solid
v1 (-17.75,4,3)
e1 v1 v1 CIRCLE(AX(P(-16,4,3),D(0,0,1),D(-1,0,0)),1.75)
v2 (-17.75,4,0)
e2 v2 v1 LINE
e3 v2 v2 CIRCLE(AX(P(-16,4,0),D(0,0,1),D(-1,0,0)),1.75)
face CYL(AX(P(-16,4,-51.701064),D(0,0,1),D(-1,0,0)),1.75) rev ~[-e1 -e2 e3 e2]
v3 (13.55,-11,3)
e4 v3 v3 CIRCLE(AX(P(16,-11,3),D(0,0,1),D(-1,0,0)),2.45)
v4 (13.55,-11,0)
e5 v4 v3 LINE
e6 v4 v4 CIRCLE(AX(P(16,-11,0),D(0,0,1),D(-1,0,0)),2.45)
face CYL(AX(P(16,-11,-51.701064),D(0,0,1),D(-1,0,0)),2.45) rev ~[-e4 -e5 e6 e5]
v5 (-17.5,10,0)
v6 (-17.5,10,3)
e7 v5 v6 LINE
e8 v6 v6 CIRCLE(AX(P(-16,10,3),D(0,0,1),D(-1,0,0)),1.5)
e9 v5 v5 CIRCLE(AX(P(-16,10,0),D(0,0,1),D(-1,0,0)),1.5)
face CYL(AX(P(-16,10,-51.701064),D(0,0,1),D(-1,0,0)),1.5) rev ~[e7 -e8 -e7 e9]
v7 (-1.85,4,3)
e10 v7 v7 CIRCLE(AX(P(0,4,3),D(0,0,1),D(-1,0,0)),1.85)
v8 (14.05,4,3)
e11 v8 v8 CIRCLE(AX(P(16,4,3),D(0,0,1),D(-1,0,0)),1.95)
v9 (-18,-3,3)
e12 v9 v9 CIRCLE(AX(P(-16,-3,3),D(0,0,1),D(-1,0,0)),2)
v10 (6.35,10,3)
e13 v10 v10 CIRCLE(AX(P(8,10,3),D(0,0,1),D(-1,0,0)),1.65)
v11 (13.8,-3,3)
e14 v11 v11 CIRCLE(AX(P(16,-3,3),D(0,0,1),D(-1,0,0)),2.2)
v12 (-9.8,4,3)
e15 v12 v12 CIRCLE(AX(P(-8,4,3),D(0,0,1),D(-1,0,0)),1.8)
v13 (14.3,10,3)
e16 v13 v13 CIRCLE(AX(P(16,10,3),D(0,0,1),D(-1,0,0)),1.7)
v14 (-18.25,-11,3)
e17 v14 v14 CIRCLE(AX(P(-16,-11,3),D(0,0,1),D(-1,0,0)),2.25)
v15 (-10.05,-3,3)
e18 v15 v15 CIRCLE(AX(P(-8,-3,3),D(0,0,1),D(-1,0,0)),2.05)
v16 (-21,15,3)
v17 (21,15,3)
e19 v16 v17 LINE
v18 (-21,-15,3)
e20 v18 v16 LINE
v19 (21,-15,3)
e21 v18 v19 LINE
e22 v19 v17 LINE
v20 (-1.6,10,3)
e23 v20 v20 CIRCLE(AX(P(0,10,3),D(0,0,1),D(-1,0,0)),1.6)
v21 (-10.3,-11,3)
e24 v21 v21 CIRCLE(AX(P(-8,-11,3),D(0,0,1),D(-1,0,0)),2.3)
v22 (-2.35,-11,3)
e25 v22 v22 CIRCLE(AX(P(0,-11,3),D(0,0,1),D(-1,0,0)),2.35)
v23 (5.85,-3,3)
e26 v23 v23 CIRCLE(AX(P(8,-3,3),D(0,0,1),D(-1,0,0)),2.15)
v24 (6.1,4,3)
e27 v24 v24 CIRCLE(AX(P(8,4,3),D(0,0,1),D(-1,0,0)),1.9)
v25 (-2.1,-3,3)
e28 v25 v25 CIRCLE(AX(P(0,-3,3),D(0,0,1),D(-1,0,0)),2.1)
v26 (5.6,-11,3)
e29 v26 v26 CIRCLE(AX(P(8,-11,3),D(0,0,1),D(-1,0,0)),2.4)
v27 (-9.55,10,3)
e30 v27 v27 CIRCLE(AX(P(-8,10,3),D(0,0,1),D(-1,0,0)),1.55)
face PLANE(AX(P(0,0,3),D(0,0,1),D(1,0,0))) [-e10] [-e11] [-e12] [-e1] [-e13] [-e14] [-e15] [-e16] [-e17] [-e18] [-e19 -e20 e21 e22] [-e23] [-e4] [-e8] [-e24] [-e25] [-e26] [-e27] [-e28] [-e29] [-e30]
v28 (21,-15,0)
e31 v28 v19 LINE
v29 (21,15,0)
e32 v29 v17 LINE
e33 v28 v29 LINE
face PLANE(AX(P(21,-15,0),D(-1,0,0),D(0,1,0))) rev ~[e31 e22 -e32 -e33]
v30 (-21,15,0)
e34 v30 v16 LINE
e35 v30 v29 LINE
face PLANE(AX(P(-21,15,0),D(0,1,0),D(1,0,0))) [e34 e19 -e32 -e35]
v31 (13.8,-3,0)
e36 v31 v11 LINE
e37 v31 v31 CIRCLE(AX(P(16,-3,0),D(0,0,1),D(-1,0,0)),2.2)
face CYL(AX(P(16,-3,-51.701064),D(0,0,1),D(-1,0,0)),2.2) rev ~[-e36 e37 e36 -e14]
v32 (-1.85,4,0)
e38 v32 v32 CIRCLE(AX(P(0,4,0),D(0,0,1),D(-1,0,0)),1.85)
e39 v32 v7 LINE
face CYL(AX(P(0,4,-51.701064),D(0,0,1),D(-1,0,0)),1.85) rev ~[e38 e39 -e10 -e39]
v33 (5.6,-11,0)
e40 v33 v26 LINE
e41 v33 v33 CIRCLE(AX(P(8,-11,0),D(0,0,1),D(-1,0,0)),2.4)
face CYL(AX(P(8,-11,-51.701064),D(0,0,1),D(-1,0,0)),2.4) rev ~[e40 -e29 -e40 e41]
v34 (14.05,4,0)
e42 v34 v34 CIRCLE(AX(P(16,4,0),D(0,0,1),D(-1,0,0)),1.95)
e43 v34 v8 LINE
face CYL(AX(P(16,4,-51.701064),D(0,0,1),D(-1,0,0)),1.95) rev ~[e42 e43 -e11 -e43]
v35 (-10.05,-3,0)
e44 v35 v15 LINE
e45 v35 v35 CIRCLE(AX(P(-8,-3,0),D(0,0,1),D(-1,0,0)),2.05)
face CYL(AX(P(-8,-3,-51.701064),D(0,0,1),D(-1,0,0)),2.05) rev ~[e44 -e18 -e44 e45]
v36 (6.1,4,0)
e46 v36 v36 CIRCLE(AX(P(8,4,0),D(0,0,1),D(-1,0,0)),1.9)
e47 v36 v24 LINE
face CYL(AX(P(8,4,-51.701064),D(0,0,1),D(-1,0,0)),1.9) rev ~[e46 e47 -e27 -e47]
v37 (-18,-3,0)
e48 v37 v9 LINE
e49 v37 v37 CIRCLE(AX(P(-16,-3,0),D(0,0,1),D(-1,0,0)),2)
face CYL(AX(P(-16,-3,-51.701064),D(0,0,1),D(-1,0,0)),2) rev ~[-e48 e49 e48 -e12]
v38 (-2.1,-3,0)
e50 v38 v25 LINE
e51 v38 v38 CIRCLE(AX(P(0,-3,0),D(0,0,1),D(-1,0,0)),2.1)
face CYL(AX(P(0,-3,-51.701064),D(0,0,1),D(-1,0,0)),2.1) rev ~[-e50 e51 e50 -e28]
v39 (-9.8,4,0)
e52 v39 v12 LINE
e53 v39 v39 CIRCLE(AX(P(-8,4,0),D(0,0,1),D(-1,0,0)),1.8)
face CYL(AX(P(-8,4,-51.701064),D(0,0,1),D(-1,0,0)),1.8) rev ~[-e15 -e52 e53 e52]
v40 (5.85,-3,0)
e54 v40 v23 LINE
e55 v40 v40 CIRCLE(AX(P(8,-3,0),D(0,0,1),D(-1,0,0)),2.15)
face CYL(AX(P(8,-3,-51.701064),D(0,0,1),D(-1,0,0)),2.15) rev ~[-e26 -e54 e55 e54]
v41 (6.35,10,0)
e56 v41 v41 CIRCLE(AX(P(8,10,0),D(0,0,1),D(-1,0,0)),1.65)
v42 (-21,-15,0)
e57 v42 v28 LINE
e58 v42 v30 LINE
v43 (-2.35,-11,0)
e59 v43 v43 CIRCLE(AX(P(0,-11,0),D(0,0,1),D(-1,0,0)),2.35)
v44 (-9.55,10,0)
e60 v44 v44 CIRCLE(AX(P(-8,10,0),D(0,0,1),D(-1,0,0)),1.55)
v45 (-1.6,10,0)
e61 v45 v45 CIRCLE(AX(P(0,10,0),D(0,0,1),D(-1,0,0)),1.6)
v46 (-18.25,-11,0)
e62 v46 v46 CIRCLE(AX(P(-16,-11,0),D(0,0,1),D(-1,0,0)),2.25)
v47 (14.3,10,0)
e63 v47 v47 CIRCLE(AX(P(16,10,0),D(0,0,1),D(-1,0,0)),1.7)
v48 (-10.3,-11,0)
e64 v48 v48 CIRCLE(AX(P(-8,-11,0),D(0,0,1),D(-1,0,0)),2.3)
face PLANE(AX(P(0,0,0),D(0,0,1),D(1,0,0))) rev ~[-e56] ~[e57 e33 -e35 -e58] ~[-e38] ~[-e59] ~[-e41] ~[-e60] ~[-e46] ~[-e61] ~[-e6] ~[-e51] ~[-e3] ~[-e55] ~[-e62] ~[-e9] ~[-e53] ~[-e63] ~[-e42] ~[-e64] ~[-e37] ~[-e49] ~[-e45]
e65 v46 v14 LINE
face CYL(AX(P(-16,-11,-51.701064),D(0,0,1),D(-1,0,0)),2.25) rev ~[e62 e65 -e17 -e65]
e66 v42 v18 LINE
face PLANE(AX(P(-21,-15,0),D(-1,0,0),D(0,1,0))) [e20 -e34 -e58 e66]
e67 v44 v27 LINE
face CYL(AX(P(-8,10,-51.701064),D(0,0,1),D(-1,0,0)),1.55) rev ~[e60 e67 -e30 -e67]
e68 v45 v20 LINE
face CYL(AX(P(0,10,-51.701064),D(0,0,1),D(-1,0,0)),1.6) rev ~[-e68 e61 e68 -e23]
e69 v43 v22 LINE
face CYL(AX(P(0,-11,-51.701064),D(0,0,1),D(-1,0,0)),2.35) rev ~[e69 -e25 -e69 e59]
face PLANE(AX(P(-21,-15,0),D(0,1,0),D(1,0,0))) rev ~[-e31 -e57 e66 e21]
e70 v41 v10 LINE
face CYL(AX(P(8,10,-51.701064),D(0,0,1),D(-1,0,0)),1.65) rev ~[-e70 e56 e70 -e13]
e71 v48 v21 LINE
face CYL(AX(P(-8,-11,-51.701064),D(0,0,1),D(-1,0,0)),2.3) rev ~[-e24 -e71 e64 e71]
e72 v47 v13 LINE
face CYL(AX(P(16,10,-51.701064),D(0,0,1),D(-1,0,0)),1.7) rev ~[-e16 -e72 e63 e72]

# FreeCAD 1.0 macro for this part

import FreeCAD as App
import Part
import Sketcher

V = App.Vector


def add_polygon(sketch, points):
    """Adds a closed chain of lines whose ends are joined by coincident constraints."""
    first, n = sketch.GeometryCount, len(points)
    for a, b in zip(points, points[1:] + points[:1]):
        sketch.addGeometry(Part.LineSegment(App.Vector(*a, 0), App.Vector(*b, 0)), False)
    for i in range(n):
        sketch.addConstraint(Sketcher.Constraint("Coincident", first + i, 2, first + (i + 1) % n, 1))

doc = App.newDocument("Part")
body = doc.addObject("PartDesign::Body", "Body")

sketch1 = body.newObject("Sketcher::SketchObject", "Sketch")
sketch1.AttachmentSupport = (doc.getObject("XY_Plane"), [""])
sketch1.MapMode = "FlatFace"
add_polygon(sketch1, [(-21, 15), (-21, -15), (21, -15), (21, 15)])
sketch1.addConstraint(Sketcher.Constraint("Vertical", 0))
sketch1.addConstraint(Sketcher.Constraint("Horizontal", 1))
sketch1.addConstraint(Sketcher.Constraint("Vertical", 2))
sketch1.addConstraint(Sketcher.Constraint("Horizontal", 3))
sketch1.addConstraint(Sketcher.Constraint("Symmetric", 0, 2, 2, 2, -1, 1))
sketch1.addConstraint(Sketcher.Constraint("DistanceX", 1, 1, 1, 2, 42.0))
sketch1.addConstraint(Sketcher.Constraint("DistanceY", 0, 2, 0, 1, 30.0))
pad1 = body.newObject("PartDesign::Pad", "Pad")
pad1.Profile = sketch1
pad1.Length = 3

sketch2 = body.newObject("Sketcher::SketchObject", "Sketch001")
sketch2.AttachmentSupport = (doc.getObject("XY_Plane"), [""])
sketch2.MapMode = "FlatFace"
sketch2.addGeometry(Part.Circle(V(-16, 10, 0), V(0, 0, 1), 1.5), False)
sketch2.addConstraint(Sketcher.Constraint("Diameter", 0, 3.0))
sketch2.addConstraint(Sketcher.Constraint("DistanceX", 0, 3, -1, 1, 16.0))
sketch2.addConstraint(Sketcher.Constraint("DistanceY", -1, 1, 0, 3, 10.0))
doc.recompute()
hole = body.newObject("PartDesign::Hole", "Hole")
hole.Profile = sketch2
hole.ThreadType = "None"
hole.Diameter = 3
hole.DepthType = "ThroughAll"
hole.Reversed = True

sketch3 = body.newObject("Sketcher::SketchObject", "Sketch002")
sketch3.AttachmentSupport = (doc.getObject("XY_Plane"), [""])
sketch3.MapMode = "FlatFace"
sketch3.addGeometry(Part.Circle(V(-8, 10, 0), V(0, 0, 1), 1.6), False)
sketch3.addConstraint(Sketcher.Constraint("Diameter", 0, 3.1))
sketch3.addConstraint(Sketcher.Constraint("DistanceX", 0, 3, -1, 1, 8.0))
sketch3.addConstraint(Sketcher.Constraint("DistanceY", -1, 1, 0, 3, 10.0))
doc.recompute()
hole2 = body.newObject("PartDesign::Hole", "Hole001")
hole2.Profile = sketch3
hole2.ThreadType = "None"
hole2.Diameter = 3.1
hole2.DepthType = "ThroughAll"
hole2.Reversed = True

sketch4 = body.newObject("Sketcher::SketchObject", "Sketch003")
sketch4.AttachmentSupport = (doc.getObject("XY_Plane"), [""])
sketch4.MapMode = "FlatFace"
sketch4.addGeometry(Part.Circle(V(0, 10, 0), V(0, 0, 1), 1.6), False)
sketch4.addConstraint(Sketcher.Constraint("PointOnObject", 0, 3, -2))
sketch4.addConstraint(Sketcher.Constraint("Diameter", 0, 3.2))
sketch4.addConstraint(Sketcher.Constraint("DistanceY", -1, 1, 0, 3, 10.0))
doc.recompute()
hole3 = body.newObject("PartDesign::Hole", "Hole002")
hole3.Profile = sketch4
hole3.ThreadType = "None"
hole3.Diameter = 3.2
hole3.DepthType = "ThroughAll"
hole3.Reversed = True

sketch5 = body.newObject("Sketcher::SketchObject", "Sketch004")
sketch5.AttachmentSupport = (doc.getObject("XY_Plane"), [""])
sketch5.MapMode = "FlatFace"
sketch5.addGeometry(Part.Circle(V(8, 10, 0), V(0, 0, 1), 1.6), False)
sketch5.addConstraint(Sketcher.Constraint("Diameter", 0, 3.3))
sketch5.addConstraint(Sketcher.Constraint("DistanceX", -1, 1, 0, 3, 8.0))
sketch5.addConstraint(Sketcher.Constraint("DistanceY", -1, 1, 0, 3, 10.0))
doc.recompute()
hole4 = body.newObject("PartDesign::Hole", "Hole003")
hole4.Profile = sketch5
hole4.ThreadType = "None"
hole4.Diameter = 3.3
hole4.DepthType = "ThroughAll"
hole4.Reversed = True

sketch6 = body.newObject("Sketcher::SketchObject", "Sketch005")
sketch6.AttachmentSupport = (doc.getObject("XY_Plane"), [""])
sketch6.MapMode = "FlatFace"
sketch6.addGeometry(Part.Circle(V(16, 10, 0), V(0, 0, 1), 1.7), False)
sketch6.addConstraint(Sketcher.Constraint("Diameter", 0, 3.4))
sketch6.addConstraint(Sketcher.Constraint("DistanceX", -1, 1, 0, 3, 16.0))
sketch6.addConstraint(Sketcher.Constraint("DistanceY", -1, 1, 0, 3, 10.0))
doc.recompute()
hole5 = body.newObject("PartDesign::Hole", "Hole004")
hole5.Profile = sketch6
hole5.ThreadType = "None"
hole5.Diameter = 3.4
hole5.DepthType = "ThroughAll"
hole5.Reversed = True

sketch7 = body.newObject("Sketcher::SketchObject", "Sketch006")
sketch7.AttachmentSupport = (doc.getObject("XY_Plane"), [""])
sketch7.MapMode = "FlatFace"
sketch7.addGeometry(Part.Circle(V(-16, 4, 0), V(0, 0, 1), 1.8), False)
sketch7.addConstraint(Sketcher.Constraint("Diameter", 0, 3.5))
sketch7.addConstraint(Sketcher.Constraint("DistanceX", 0, 3, -1, 1, 16.0))
sketch7.addConstraint(Sketcher.Constraint("DistanceY", -1, 1, 0, 3, 4.0))
doc.recompute()
hole6 = body.newObject("PartDesign::Hole", "Hole005")
hole6.Profile = sketch7
hole6.ThreadType = "None"
hole6.Diameter = 3.5
hole6.DepthType = "ThroughAll"
hole6.Reversed = True

sketch8 = body.newObject("Sketcher::SketchObject", "Sketch007")
sketch8.AttachmentSupport = (doc.getObject("XY_Plane"), [""])
sketch8.MapMode = "FlatFace"
sketch8.addGeometry(Part.Circle(V(-8, 4, 0), V(0, 0, 1), 1.8), False)
sketch8.addConstraint(Sketcher.Constraint("Diameter", 0, 3.6))
sketch8.addConstraint(Sketcher.Constraint("DistanceX", 0, 3, -1, 1, 8.0))
sketch8.addConstraint(Sketcher.Constraint("DistanceY", -1, 1, 0, 3, 4.0))
doc.recompute()
hole7 = body.newObject("PartDesign::Hole", "Hole006")
hole7.Profile = sketch8
hole7.ThreadType = "None"
hole7.Diameter = 3.6
hole7.DepthType = "ThroughAll"
hole7.Reversed = True

sketch9 = body.newObject("Sketcher::SketchObject", "Sketch008")
sketch9.AttachmentSupport = (doc.getObject("XY_Plane"), [""])
sketch9.MapMode = "FlatFace"
sketch9.addGeometry(Part.Circle(V(0, 4, 0), V(0, 0, 1), 1.9), False)
sketch9.addConstraint(Sketcher.Constraint("PointOnObject", 0, 3, -2))
sketch9.addConstraint(Sketcher.Constraint("Diameter", 0, 3.7))
sketch9.addConstraint(Sketcher.Constraint("DistanceY", -1, 1, 0, 3, 4.0))
doc.recompute()
hole8 = body.newObject("PartDesign::Hole", "Hole007")
hole8.Profile = sketch9
hole8.ThreadType = "None"
hole8.Diameter = 3.7
hole8.DepthType = "ThroughAll"
hole8.Reversed = True

sketch10 = body.newObject("Sketcher::SketchObject", "Sketch009")
sketch10.AttachmentSupport = (doc.getObject("XY_Plane"), [""])
sketch10.MapMode = "FlatFace"
sketch10.addGeometry(Part.Circle(V(8, 4, 0), V(0, 0, 1), 1.9), False)
sketch10.addConstraint(Sketcher.Constraint("Diameter", 0, 3.8))
sketch10.addConstraint(Sketcher.Constraint("DistanceX", -1, 1, 0, 3, 8.0))
sketch10.addConstraint(Sketcher.Constraint("DistanceY", -1, 1, 0, 3, 4.0))
doc.recompute()
hole9 = body.newObject("PartDesign::Hole", "Hole008")
hole9.Profile = sketch10
hole9.ThreadType = "None"
hole9.Diameter = 3.8
hole9.DepthType = "ThroughAll"
hole9.Reversed = True

sketch11 = body.newObject("Sketcher::SketchObject", "Sketch010")
sketch11.AttachmentSupport = (doc.getObject("XY_Plane"), [""])
sketch11.MapMode = "FlatFace"
sketch11.addGeometry(Part.Circle(V(16, 4, 0), V(0, 0, 1), 1.9), False)
sketch11.addConstraint(Sketcher.Constraint("Diameter", 0, 3.9))
sketch11.addConstraint(Sketcher.Constraint("DistanceX", -1, 1, 0, 3, 16.0))
sketch11.addConstraint(Sketcher.Constraint("DistanceY", -1, 1, 0, 3, 4.0))
doc.recompute()
hole10 = body.newObject("PartDesign::Hole", "Hole009")
hole10.Profile = sketch11
hole10.ThreadType = "None"
hole10.Diameter = 3.9
hole10.DepthType = "ThroughAll"
hole10.Reversed = True

sketch12 = body.newObject("Sketcher::SketchObject", "Sketch011")
sketch12.AttachmentSupport = (doc.getObject("XY_Plane"), [""])
sketch12.MapMode = "FlatFace"
sketch12.addGeometry(Part.Circle(V(-16, -3, 0), V(0, 0, 1), 2), False)
sketch12.addConstraint(Sketcher.Constraint("Diameter", 0, 4.0))
sketch12.addConstraint(Sketcher.Constraint("DistanceX", 0, 3, -1, 1, 16.0))
sketch12.addConstraint(Sketcher.Constraint("DistanceY", 0, 3, -1, 1, 3.0))
doc.recompute()
hole11 = body.newObject("PartDesign::Hole", "Hole010")
hole11.Profile = sketch12
hole11.ThreadType = "None"
hole11.Diameter = 4
hole11.DepthType = "ThroughAll"
hole11.Reversed = True

sketch13 = body.newObject("Sketcher::SketchObject", "Sketch012")
sketch13.AttachmentSupport = (doc.getObject("XY_Plane"), [""])
sketch13.MapMode = "FlatFace"
sketch13.addGeometry(Part.Circle(V(-8, -3, 0), V(0, 0, 1), 2), False)
sketch13.addConstraint(Sketcher.Constraint("Diameter", 0, 4.1))
sketch13.addConstraint(Sketcher.Constraint("DistanceX", 0, 3, -1, 1, 8.0))
sketch13.addConstraint(Sketcher.Constraint("DistanceY", 0, 3, -1, 1, 3.0))
doc.recompute()
hole12 = body.newObject("PartDesign::Hole", "Hole011")
hole12.Profile = sketch13
hole12.ThreadType = "None"
hole12.Diameter = 4.1
hole12.DepthType = "ThroughAll"
hole12.Reversed = True

sketch14 = body.newObject("Sketcher::SketchObject", "Sketch013")
sketch14.AttachmentSupport = (doc.getObject("XY_Plane"), [""])
sketch14.MapMode = "FlatFace"
sketch14.addGeometry(Part.Circle(V(0, -3, 0), V(0, 0, 1), 2.1), False)
sketch14.addConstraint(Sketcher.Constraint("PointOnObject", 0, 3, -2))
sketch14.addConstraint(Sketcher.Constraint("Diameter", 0, 4.2))
sketch14.addConstraint(Sketcher.Constraint("DistanceY", 0, 3, -1, 1, 3.0))
doc.recompute()
hole13 = body.newObject("PartDesign::Hole", "Hole012")
hole13.Profile = sketch14
hole13.ThreadType = "None"
hole13.Diameter = 4.2
hole13.DepthType = "ThroughAll"
hole13.Reversed = True

sketch15 = body.newObject("Sketcher::SketchObject", "Sketch014")
sketch15.AttachmentSupport = (doc.getObject("XY_Plane"), [""])
sketch15.MapMode = "FlatFace"
sketch15.addGeometry(Part.Circle(V(8, -3, 0), V(0, 0, 1), 2.1), False)
sketch15.addConstraint(Sketcher.Constraint("Diameter", 0, 4.3))
sketch15.addConstraint(Sketcher.Constraint("DistanceX", -1, 1, 0, 3, 8.0))
sketch15.addConstraint(Sketcher.Constraint("DistanceY", 0, 3, -1, 1, 3.0))
doc.recompute()
hole14 = body.newObject("PartDesign::Hole", "Hole013")
hole14.Profile = sketch15
hole14.ThreadType = "None"
hole14.Diameter = 4.3
hole14.DepthType = "ThroughAll"
hole14.Reversed = True

sketch16 = body.newObject("Sketcher::SketchObject", "Sketch015")
sketch16.AttachmentSupport = (doc.getObject("XY_Plane"), [""])
sketch16.MapMode = "FlatFace"
sketch16.addGeometry(Part.Circle(V(16, -3, 0), V(0, 0, 1), 2.2), False)
sketch16.addConstraint(Sketcher.Constraint("Diameter", 0, 4.4))
sketch16.addConstraint(Sketcher.Constraint("DistanceX", -1, 1, 0, 3, 16.0))
sketch16.addConstraint(Sketcher.Constraint("DistanceY", 0, 3, -1, 1, 3.0))
doc.recompute()
hole15 = body.newObject("PartDesign::Hole", "Hole014")
hole15.Profile = sketch16
hole15.ThreadType = "None"
hole15.Diameter = 4.4
hole15.DepthType = "ThroughAll"
hole15.Reversed = True

sketch17 = body.newObject("Sketcher::SketchObject", "Sketch016")
sketch17.AttachmentSupport = (doc.getObject("XY_Plane"), [""])
sketch17.MapMode = "FlatFace"
sketch17.addGeometry(Part.Circle(V(-16, -11, 0), V(0, 0, 1), 2.2), False)
sketch17.addConstraint(Sketcher.Constraint("Diameter", 0, 4.5))
sketch17.addConstraint(Sketcher.Constraint("DistanceX", 0, 3, -1, 1, 16.0))
sketch17.addConstraint(Sketcher.Constraint("DistanceY", 0, 3, -1, 1, 11.0))
doc.recompute()
hole16 = body.newObject("PartDesign::Hole", "Hole015")
hole16.Profile = sketch17
hole16.ThreadType = "None"
hole16.Diameter = 4.5
hole16.DepthType = "ThroughAll"
hole16.Reversed = True

sketch18 = body.newObject("Sketcher::SketchObject", "Sketch017")
sketch18.AttachmentSupport = (doc.getObject("XY_Plane"), [""])
sketch18.MapMode = "FlatFace"
sketch18.addGeometry(Part.Circle(V(-8, -11, 0), V(0, 0, 1), 2.3), False)
sketch18.addConstraint(Sketcher.Constraint("Diameter", 0, 4.6))
sketch18.addConstraint(Sketcher.Constraint("DistanceX", 0, 3, -1, 1, 8.0))
sketch18.addConstraint(Sketcher.Constraint("DistanceY", 0, 3, -1, 1, 11.0))
doc.recompute()
hole17 = body.newObject("PartDesign::Hole", "Hole016")
hole17.Profile = sketch18
hole17.ThreadType = "None"
hole17.Diameter = 4.6
hole17.DepthType = "ThroughAll"
hole17.Reversed = True

sketch19 = body.newObject("Sketcher::SketchObject", "Sketch018")
sketch19.AttachmentSupport = (doc.getObject("XY_Plane"), [""])
sketch19.MapMode = "FlatFace"
sketch19.addGeometry(Part.Circle(V(0, -11, 0), V(0, 0, 1), 2.4), False)
sketch19.addConstraint(Sketcher.Constraint("PointOnObject", 0, 3, -2))
sketch19.addConstraint(Sketcher.Constraint("Diameter", 0, 4.7))
sketch19.addConstraint(Sketcher.Constraint("DistanceY", 0, 3, -1, 1, 11.0))
doc.recompute()
hole18 = body.newObject("PartDesign::Hole", "Hole017")
hole18.Profile = sketch19
hole18.ThreadType = "None"
hole18.Diameter = 4.7
hole18.DepthType = "ThroughAll"
hole18.Reversed = True

sketch20 = body.newObject("Sketcher::SketchObject", "Sketch019")
sketch20.AttachmentSupport = (doc.getObject("XY_Plane"), [""])
sketch20.MapMode = "FlatFace"
sketch20.addGeometry(Part.Circle(V(8, -11, 0), V(0, 0, 1), 2.4), False)
sketch20.addConstraint(Sketcher.Constraint("Diameter", 0, 4.8))
sketch20.addConstraint(Sketcher.Constraint("DistanceX", -1, 1, 0, 3, 8.0))
sketch20.addConstraint(Sketcher.Constraint("DistanceY", 0, 3, -1, 1, 11.0))
doc.recompute()
hole19 = body.newObject("PartDesign::Hole", "Hole018")
hole19.Profile = sketch20
hole19.ThreadType = "None"
hole19.Diameter = 4.8
hole19.DepthType = "ThroughAll"
hole19.Reversed = True

sketch21 = body.newObject("Sketcher::SketchObject", "Sketch020")
sketch21.AttachmentSupport = (doc.getObject("XY_Plane"), [""])
sketch21.MapMode = "FlatFace"
sketch21.addGeometry(Part.Circle(V(16, -11, 0), V(0, 0, 1), 2.5), False)
sketch21.addConstraint(Sketcher.Constraint("Diameter", 0, 4.9))
sketch21.addConstraint(Sketcher.Constraint("DistanceX", -1, 1, 0, 3, 16.0))
sketch21.addConstraint(Sketcher.Constraint("DistanceY", 0, 3, -1, 1, 11.0))
doc.recompute()
hole20 = body.newObject("PartDesign::Hole", "Hole019")
hole20.Profile = sketch21
hole20.ThreadType = "None"
hole20.Diameter = 4.9
hole20.DepthType = "ThroughAll"
hole20.Reversed = True

doc.recompute()
